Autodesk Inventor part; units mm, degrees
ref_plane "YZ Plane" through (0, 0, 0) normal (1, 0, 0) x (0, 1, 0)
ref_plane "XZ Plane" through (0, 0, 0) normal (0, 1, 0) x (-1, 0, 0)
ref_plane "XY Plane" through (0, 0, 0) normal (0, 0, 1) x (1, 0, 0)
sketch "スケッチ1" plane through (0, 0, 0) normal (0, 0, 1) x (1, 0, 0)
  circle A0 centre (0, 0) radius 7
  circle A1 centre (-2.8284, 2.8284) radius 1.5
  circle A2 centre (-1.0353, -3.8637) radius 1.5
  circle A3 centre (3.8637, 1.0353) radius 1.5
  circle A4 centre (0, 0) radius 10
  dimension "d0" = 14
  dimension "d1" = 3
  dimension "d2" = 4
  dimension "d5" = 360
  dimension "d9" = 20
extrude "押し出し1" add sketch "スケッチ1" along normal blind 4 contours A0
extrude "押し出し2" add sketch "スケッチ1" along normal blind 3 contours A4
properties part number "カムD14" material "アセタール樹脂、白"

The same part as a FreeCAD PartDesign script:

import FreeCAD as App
import Part
import Sketcher

V = App.Vector
Q = App.Units.Quantity

doc = App.newDocument("Part")
body = doc.addObject("PartDesign::Body", "Body")

# Sketch on XY plane
sketch1 = body.newObject("Sketcher::SketchObject", "Sketch")
sketch1.AttachmentSupport = (doc.getObject("XY_Plane"), [""])
sketch1.MapMode = "FlatFace"
sketch1.addGeometry([
    Part.Circle(V(0, 0, 0), V(0, 0, 1), 7),
    Part.Circle(V(-1, -3.9, 0), V(0, 0, 1), 1.5),
    Part.Circle(V(-2.8, 2.8, 0), V(0, 0, 1), 1.5),
    Part.Circle(V(3.9, 1, 0), V(0, 0, 1), 1.5),
], False)
sketch1.addConstraint([
    Sketcher.Constraint("Coincident", 0, 3, -1, 1),
    Sketcher.Constraint("Equal", 1, 2),
    Sketcher.Constraint("Equal", 2, 3),
    Sketcher.Constraint("Diameter", 0, Q("14 mm")),
    Sketcher.Constraint("Diameter", 1, Q("3 mm")),
    Sketcher.Constraint("DistanceX", 2, 3, 1, 3, Q("1.793 mm")),
    Sketcher.Constraint("DistanceY", 1, 3, 2, 3, Q("6.692 mm")),
    Sketcher.Constraint("DistanceX", 2, 3, 3, 3, Q("6.692 mm")),
    Sketcher.Constraint("DistanceY", 3, 3, 2, 3, Q("1.793 mm")),
    Sketcher.Constraint("DistanceX", 1, 3, -1, 1, Q("1.0353 mm")),
    Sketcher.Constraint("DistanceY", 1, 3, -1, 1, Q("3.8637 mm")),
])
pad1 = body.newObject("PartDesign::Pad", "Pad")
pad1.Profile = sketch1
pad1.Length = 4

# Sketch on XY plane
sketch2 = body.newObject("Sketcher::SketchObject", "Sketch001")
sketch2.AttachmentSupport = (doc.getObject("XY_Plane"), [""])
sketch2.MapMode = "FlatFace"
sketch2.addGeometry([
    Part.Circle(V(0, 0, 0), V(0, 0, 1), 10),
    Part.Circle(V(0, 0, 0), V(0, 0, 1), 7),
], False)
sketch2.addConstraint([
    Sketcher.Constraint("Coincident", 0, 3, -1, 1),
    Sketcher.Constraint("Coincident", 1, 3, -1, 1),
    Sketcher.Constraint("Diameter", 0, Q("20 mm")),
    Sketcher.Constraint("Diameter", 1, Q("14 mm")),
])
pad2 = body.newObject("PartDesign::Pad", "Pad001")
pad2.Profile = sketch2
pad2.Length = 3

doc.recompute()
